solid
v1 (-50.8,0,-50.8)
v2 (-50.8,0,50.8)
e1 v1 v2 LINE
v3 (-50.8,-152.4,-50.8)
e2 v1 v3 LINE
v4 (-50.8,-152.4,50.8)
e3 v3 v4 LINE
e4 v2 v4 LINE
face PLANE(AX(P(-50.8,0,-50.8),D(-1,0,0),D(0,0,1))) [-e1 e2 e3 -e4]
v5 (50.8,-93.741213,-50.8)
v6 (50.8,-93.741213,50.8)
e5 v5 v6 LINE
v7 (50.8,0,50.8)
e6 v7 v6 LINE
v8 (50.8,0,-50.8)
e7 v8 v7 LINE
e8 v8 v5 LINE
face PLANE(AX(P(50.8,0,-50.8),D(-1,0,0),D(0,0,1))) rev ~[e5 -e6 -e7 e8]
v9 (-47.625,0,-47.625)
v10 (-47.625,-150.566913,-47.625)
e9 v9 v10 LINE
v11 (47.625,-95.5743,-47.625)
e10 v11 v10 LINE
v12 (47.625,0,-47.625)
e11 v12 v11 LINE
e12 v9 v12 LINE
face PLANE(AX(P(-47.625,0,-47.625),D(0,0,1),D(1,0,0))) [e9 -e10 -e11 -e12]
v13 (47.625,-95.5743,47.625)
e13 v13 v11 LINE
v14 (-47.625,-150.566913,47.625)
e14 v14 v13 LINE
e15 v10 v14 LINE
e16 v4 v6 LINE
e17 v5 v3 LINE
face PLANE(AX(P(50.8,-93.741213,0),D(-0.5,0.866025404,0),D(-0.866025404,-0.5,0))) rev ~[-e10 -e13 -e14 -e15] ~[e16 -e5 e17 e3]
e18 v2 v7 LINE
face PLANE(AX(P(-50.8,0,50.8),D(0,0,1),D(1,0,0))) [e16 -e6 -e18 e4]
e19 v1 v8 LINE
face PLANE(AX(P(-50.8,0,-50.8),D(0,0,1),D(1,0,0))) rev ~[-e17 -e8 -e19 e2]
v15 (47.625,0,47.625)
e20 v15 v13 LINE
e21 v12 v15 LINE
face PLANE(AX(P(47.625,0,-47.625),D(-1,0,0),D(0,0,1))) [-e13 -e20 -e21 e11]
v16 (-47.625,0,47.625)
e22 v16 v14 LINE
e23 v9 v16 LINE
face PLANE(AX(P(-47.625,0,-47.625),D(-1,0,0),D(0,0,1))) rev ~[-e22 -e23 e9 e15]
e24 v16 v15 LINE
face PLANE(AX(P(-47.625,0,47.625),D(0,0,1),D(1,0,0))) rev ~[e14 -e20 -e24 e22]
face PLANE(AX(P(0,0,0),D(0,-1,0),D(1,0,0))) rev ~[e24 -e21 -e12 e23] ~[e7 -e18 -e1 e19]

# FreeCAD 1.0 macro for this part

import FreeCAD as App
import Part
import Sketcher
Q = App.Units.Quantity

doc = App.newDocument("Part")
body = doc.addObject("PartDesign::Body", "Body")

# Sketch on XZ plane
sketch1 = body.newObject("Sketcher::SketchObject", "Sketch")
sketch1.AttachmentSupport = (doc.getObject("XZ_Plane"), [""])
sketch1.MapMode = "FlatFace"
sketch1.addGeometry(Part.LineSegment(App.Vector(-51, 51, 0), App.Vector(-51, -51, 0)), False)
sketch1.addGeometry(Part.LineSegment(App.Vector(-51, -51, 0), App.Vector(51, -51, 0)), False)
sketch1.addGeometry(Part.LineSegment(App.Vector(51, -51, 0), App.Vector(51, 51, 0)), False)
sketch1.addGeometry(Part.LineSegment(App.Vector(51, 51, 0), App.Vector(-51, 51, 0)), False)
sketch1.addGeometry(Part.LineSegment(App.Vector(48, -48, 0), App.Vector(-48, -48, 0)), False)
sketch1.addGeometry(Part.LineSegment(App.Vector(-48, -48, 0), App.Vector(-48, 48, 0)), False)
sketch1.addGeometry(Part.LineSegment(App.Vector(-48, 48, 0), App.Vector(48, 48, 0)), False)
sketch1.addGeometry(Part.LineSegment(App.Vector(48, 48, 0), App.Vector(48, -48, 0)), False)
sketch1.addConstraint(Sketcher.Constraint("Coincident", 0, 2, 1, 1))
sketch1.addConstraint(Sketcher.Constraint("Coincident", 1, 2, 2, 1))
sketch1.addConstraint(Sketcher.Constraint("Coincident", 2, 2, 3, 1))
sketch1.addConstraint(Sketcher.Constraint("Coincident", 3, 2, 0, 1))
sketch1.addConstraint(Sketcher.Constraint("Coincident", 4, 2, 5, 1))
sketch1.addConstraint(Sketcher.Constraint("Coincident", 5, 2, 6, 1))
sketch1.addConstraint(Sketcher.Constraint("Coincident", 6, 2, 7, 1))
sketch1.addConstraint(Sketcher.Constraint("Coincident", 7, 2, 4, 1))
sketch1.addConstraint(Sketcher.Constraint("Vertical", 0))
sketch1.addConstraint(Sketcher.Constraint("Horizontal", 1))
sketch1.addConstraint(Sketcher.Constraint("Vertical", 2))
sketch1.addConstraint(Sketcher.Constraint("Horizontal", 3))
sketch1.addConstraint(Sketcher.Constraint("Horizontal", 4))
sketch1.addConstraint(Sketcher.Constraint("Vertical", 5))
sketch1.addConstraint(Sketcher.Constraint("Horizontal", 6))
sketch1.addConstraint(Sketcher.Constraint("Vertical", 7))
sketch1.addConstraint(Sketcher.Constraint("Symmetric", 0, 2, 2, 2, -1, 1))
sketch1.addConstraint(Sketcher.Constraint("Symmetric", 4, 2, 6, 2, -1, 1))
sketch1.addConstraint(Sketcher.Constraint("Equal", 3, 0))
sketch1.addConstraint(Sketcher.Constraint("Equal", 6, 5))
sketch1.addConstraint(Sketcher.Constraint("DistanceX", 1, 1, 1, 2, Q("4 in")))
sketch1.addConstraint(Sketcher.Constraint("DistanceX", 4, 2, 4, 1, Q("3.75 in")))
pad1 = body.newObject("PartDesign::Pad", "Pad")
pad1.Profile = sketch1
pad1.Length = Q("6 in")

# Sketch on XY plane
sketch2 = body.newObject("Sketcher::SketchObject", "Sketch001")
sketch2.AttachmentSupport = (doc.getObject("XY_Plane"), [""])
sketch2.MapMode = "FlatFace"
sketch2.addGeometry(Part.LineSegment(App.Vector(-51, -152, 0), App.Vector(51, -152, 0)), False)
sketch2.addGeometry(Part.LineSegment(App.Vector(51, -152, 0), App.Vector(51, -94, 0)), False)
sketch2.addGeometry(Part.LineSegment(App.Vector(51, -94, 0), App.Vector(-51, -152, 0)), False)
sketch2.addConstraint(Sketcher.Constraint("Coincident", 0, 2, 1, 1))
sketch2.addConstraint(Sketcher.Constraint("Coincident", 1, 2, 2, 1))
sketch2.addConstraint(Sketcher.Constraint("Coincident", 2, 2, 0, 1))
sketch2.addConstraint(Sketcher.Constraint("Horizontal", 0))
sketch2.addConstraint(Sketcher.Constraint("Vertical", 1))
sketch2.addConstraint(Sketcher.Constraint("DistanceX", 0, 1, 0, 2, Q("4 in")))
sketch2.addConstraint(Sketcher.Constraint("DistanceX", -1, 1, 0, 2, Q("2 in")))
sketch2.addConstraint(Sketcher.Constraint("DistanceY", 0, 2, -1, 1, Q("6 in")))
sketch2.addConstraint(Sketcher.Constraint("Angle", 2, Q("-150 deg")))
pocket1 = body.newObject("PartDesign::Pocket", "Pocket")
pocket1.Profile = sketch2
pocket1.Type = "ThroughAll"
pocket1.Midplane = True

doc.recompute()
